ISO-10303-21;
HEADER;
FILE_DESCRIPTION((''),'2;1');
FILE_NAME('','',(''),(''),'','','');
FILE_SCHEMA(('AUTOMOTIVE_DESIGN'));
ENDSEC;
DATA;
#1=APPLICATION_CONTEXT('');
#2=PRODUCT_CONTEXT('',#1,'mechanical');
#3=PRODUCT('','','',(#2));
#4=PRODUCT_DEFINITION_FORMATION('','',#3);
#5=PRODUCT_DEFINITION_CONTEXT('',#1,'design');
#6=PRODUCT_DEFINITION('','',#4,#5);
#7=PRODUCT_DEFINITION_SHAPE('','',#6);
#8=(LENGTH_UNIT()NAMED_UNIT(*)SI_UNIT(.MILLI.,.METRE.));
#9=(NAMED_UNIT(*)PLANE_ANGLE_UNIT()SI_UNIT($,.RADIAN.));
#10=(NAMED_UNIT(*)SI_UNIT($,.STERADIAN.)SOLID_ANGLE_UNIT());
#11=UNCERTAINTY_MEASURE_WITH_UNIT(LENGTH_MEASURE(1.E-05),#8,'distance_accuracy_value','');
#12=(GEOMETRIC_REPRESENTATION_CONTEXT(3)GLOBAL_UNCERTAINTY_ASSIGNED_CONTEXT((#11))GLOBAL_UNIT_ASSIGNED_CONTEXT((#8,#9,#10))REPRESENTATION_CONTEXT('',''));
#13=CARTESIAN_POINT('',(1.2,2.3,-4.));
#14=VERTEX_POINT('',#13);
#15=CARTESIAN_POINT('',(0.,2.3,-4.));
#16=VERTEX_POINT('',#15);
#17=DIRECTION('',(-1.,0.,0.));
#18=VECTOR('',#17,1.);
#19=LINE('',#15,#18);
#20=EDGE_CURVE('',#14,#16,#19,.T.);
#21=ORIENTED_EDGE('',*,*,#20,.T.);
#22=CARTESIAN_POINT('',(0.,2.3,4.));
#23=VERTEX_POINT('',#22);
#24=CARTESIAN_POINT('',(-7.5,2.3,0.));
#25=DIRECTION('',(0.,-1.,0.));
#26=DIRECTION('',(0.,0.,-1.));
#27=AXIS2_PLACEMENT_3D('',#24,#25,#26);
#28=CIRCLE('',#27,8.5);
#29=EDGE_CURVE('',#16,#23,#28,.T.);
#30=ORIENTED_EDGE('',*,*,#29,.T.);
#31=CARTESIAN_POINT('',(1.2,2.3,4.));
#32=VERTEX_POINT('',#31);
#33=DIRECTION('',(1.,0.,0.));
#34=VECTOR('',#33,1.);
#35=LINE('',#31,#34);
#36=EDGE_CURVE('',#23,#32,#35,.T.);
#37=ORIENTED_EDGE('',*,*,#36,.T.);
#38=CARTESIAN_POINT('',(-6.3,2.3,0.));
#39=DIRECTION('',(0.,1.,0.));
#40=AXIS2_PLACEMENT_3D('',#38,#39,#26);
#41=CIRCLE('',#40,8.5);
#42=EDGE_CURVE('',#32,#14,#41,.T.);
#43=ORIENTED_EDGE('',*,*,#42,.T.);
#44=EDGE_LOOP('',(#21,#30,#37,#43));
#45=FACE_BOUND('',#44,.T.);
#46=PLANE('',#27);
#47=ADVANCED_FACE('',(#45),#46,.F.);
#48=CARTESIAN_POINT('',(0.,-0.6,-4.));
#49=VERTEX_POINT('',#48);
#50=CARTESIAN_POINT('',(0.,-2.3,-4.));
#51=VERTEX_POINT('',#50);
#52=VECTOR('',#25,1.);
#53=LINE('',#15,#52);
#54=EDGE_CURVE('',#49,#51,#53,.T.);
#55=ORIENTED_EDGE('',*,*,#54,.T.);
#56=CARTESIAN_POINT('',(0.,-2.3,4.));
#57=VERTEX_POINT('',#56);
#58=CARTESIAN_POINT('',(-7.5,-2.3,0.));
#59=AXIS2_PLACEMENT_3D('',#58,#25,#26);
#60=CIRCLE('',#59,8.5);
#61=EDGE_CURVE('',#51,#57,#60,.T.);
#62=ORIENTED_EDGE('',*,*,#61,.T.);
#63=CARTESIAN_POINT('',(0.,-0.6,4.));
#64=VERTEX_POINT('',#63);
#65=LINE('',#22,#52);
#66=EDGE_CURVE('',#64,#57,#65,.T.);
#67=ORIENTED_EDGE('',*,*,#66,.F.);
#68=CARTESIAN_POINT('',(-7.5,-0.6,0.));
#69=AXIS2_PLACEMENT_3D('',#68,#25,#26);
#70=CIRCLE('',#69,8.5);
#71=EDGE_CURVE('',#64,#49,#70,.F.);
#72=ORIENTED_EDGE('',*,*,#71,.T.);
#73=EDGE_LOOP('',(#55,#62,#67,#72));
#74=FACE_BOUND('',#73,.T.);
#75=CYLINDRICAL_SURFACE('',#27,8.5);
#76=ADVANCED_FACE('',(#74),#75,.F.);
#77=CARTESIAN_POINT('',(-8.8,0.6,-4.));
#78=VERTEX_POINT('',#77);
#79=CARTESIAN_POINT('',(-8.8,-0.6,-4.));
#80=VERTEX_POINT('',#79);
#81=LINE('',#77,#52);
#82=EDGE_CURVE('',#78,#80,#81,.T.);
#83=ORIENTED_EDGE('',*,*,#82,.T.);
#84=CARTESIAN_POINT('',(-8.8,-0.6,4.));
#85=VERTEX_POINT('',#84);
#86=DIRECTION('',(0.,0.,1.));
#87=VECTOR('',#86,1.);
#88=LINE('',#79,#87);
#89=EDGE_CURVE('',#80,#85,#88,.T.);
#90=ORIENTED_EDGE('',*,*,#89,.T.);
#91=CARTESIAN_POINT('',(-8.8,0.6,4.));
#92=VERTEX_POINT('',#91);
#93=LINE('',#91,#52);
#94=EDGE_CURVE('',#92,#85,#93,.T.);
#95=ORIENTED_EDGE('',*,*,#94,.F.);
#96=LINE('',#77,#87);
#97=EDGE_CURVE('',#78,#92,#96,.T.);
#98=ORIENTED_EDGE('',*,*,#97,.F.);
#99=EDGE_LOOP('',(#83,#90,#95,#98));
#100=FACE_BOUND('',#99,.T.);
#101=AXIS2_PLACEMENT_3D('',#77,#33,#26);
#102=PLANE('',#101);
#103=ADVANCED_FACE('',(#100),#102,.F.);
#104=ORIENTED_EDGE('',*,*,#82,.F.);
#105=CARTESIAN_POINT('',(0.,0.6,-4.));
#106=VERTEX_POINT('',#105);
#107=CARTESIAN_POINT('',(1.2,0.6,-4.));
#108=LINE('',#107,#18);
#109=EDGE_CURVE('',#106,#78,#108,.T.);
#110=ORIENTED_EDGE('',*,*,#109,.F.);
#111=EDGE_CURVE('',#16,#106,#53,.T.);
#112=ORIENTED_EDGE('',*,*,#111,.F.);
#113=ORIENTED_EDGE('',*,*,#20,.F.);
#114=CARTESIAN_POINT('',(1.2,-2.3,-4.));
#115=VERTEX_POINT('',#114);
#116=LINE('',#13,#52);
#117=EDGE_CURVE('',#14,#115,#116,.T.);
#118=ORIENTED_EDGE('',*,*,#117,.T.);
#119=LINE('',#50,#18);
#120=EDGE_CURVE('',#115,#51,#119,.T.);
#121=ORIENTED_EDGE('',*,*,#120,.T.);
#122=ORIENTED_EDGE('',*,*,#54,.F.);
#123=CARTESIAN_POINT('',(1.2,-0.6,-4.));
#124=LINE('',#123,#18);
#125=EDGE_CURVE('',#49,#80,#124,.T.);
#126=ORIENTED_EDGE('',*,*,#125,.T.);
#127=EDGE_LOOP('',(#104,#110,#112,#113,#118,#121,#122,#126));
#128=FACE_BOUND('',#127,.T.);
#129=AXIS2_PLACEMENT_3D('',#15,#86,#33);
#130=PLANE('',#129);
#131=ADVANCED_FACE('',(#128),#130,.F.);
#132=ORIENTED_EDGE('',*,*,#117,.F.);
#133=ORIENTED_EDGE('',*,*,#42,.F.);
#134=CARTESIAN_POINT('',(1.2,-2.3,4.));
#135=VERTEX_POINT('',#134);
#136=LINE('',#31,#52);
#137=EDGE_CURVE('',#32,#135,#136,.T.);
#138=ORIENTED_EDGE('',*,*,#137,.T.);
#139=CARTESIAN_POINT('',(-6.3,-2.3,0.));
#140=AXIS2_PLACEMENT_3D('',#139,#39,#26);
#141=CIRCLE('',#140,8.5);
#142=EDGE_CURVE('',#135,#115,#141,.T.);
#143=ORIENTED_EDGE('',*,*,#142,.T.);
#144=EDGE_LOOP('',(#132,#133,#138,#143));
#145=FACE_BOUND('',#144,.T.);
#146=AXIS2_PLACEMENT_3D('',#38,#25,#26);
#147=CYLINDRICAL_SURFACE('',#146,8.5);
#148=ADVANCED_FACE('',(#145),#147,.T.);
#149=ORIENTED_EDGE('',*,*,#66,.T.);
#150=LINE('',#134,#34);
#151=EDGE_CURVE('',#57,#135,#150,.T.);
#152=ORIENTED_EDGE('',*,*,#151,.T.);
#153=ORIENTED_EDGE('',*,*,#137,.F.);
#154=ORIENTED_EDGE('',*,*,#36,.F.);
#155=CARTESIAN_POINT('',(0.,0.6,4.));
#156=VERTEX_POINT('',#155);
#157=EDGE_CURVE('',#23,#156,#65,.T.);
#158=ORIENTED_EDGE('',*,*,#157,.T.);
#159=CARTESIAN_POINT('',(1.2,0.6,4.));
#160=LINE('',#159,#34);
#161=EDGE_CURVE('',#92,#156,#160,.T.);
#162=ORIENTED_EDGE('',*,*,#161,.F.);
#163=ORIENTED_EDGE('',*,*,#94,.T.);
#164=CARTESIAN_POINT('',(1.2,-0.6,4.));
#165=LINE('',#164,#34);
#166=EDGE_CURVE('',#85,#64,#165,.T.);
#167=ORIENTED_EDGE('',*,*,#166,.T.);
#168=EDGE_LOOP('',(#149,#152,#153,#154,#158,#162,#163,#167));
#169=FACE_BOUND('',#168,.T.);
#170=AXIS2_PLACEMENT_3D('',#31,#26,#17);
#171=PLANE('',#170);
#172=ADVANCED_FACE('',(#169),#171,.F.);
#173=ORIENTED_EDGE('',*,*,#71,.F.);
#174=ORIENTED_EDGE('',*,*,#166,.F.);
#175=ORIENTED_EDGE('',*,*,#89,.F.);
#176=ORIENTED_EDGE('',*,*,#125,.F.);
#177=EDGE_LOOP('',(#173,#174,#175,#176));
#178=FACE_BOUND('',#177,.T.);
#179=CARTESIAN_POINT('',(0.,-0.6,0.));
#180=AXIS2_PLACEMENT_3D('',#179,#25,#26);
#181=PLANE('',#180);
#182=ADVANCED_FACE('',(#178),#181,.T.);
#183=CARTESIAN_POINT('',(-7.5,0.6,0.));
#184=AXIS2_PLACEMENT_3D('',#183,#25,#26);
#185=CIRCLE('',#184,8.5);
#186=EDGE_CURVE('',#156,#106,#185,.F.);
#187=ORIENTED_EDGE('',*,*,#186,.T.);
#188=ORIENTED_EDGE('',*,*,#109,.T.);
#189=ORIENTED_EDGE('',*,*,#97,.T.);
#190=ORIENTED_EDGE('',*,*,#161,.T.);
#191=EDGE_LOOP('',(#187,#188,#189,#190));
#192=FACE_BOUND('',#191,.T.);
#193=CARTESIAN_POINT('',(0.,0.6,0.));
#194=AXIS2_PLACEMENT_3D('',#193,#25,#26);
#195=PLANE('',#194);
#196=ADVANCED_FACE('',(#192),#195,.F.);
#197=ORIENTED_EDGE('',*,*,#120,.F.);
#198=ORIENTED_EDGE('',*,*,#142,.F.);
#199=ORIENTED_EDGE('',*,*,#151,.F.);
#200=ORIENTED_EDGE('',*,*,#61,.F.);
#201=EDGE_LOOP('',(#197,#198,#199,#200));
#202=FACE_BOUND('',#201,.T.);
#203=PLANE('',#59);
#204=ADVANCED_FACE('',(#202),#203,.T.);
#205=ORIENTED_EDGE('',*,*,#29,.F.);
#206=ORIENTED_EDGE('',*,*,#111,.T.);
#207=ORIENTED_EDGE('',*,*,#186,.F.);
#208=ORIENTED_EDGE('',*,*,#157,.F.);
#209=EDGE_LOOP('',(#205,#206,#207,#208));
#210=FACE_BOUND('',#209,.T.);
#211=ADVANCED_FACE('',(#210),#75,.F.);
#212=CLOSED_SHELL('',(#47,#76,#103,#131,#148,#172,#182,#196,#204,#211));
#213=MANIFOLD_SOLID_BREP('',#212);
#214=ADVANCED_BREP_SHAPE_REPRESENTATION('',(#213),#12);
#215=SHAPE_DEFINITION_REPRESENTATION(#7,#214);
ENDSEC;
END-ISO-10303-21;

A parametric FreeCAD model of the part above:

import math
import FreeCAD as App
import Part
import Sketcher

V = App.Vector
Q = App.Units.Quantity


def add_polygon(sketch, points):
    """Adds a closed chain of lines whose ends are joined by coincident constraints."""
    first, n = sketch.GeometryCount, len(points)
    for a, b in zip(points, points[1:] + points[:1]):
        sketch.addGeometry(Part.LineSegment(App.Vector(*a, 0), App.Vector(*b, 0)), False)
    for i in range(n):
        sketch.addConstraint(Sketcher.Constraint("Coincident", first + i, 2, first + (i + 1) % n, 1))

doc = App.newDocument("Part")
body = doc.addObject("PartDesign::Body", "Body")

sketch1 = doc.addObject("Sketcher::SketchObject", "Sketch")
body.addObject(sketch1)
sketch1.AttachmentSupport = (doc.XZ_Plane, [""])
sketch1.MapMode = "FlatFace"
sketch1.addGeometry(Part.LineSegment(V(1.2, -4, 0), V(0, -4, 0)), False)
sketch1.addGeometry(Part.ArcOfCircle(Part.Circle(V(-7.5, 0, 0), V(0, 0, 1), 8.5), math.radians(-28.072487), math.radians(28.072487)), False)
sketch1.addGeometry(Part.LineSegment(V(0, 4, 0), V(1.2, 4, 0)), False)
sketch1.addGeometry(Part.ArcOfCircle(Part.Circle(V(-6.3, 0, 0), V(0, 0, 1), 8.5), math.radians(-28.072487), math.radians(28.072487)), False)
sketch1.addConstraint(Sketcher.Constraint("Coincident", 0, 2, 1, 1))
sketch1.addConstraint(Sketcher.Constraint("Coincident", 1, 2, 2, 1))
sketch1.addConstraint(Sketcher.Constraint("Coincident", 2, 2, 3, 2))
sketch1.addConstraint(Sketcher.Constraint("Coincident", 3, 1, 0, 1))
sketch1.addConstraint(Sketcher.Constraint("Horizontal", 0))
sketch1.addConstraint(Sketcher.Constraint("Horizontal", 2))
sketch1.addConstraint(Sketcher.Constraint("Equal", 1, 3))
sketch1.addConstraint(Sketcher.Constraint("Symmetric", 0, 2, 1, 2, -1, 1))
sketch1.addConstraint(Sketcher.Constraint("PointOnObject", 1, 3, -1))
sketch1.addConstraint(Sketcher.Constraint("PointOnObject", 3, 3, -1))
sketch1.addConstraint(Sketcher.Constraint("Radius", 1, Q("8.5 mm")))
sketch1.addConstraint(Sketcher.Constraint("DistanceX", 0, 2, 0, 1, Q("1.2 mm")))
sketch1.addConstraint(Sketcher.Constraint("DistanceY", 0, 2, -1, 1, Q("4 mm")))
pad1 = doc.addObject("PartDesign::Pad", "Pad")
body.addObject(pad1)
pad1.Profile = sketch1
pad1.Length = 4.6
pad1.Midplane = True

sketch2 = doc.addObject("Sketcher::SketchObject", "Sketch001")
body.addObject(sketch2)
sketch2.AttachmentSupport = (doc.XZ_Plane, [""])
sketch2.MapMode = "FlatFace"
add_polygon(sketch2, [(-8.8, -4), (-8.8, 4), (1.2, 4), (1.2, -4)])
sketch2.addConstraint(Sketcher.Constraint("Vertical", 0))
sketch2.addConstraint(Sketcher.Constraint("Horizontal", 1))
sketch2.addConstraint(Sketcher.Constraint("Vertical", 2))
sketch2.addConstraint(Sketcher.Constraint("Horizontal", 3))
sketch2.addConstraint(Sketcher.Constraint("DistanceX", 1, 1, 1, 2, Q("10 mm")))
sketch2.addConstraint(Sketcher.Constraint("DistanceY", 0, 1, 0, 2, Q("8 mm")))
sketch2.addConstraint(Sketcher.Constraint("DistanceY", -1, 1, 0, 2, Q("4 mm")))
sketch2.addConstraint(Sketcher.Constraint("DistanceX", 0, 2, -1, 1, Q("8.8 mm")))
pad2 = doc.addObject("PartDesign::Pad", "Pad001")
body.addObject(pad2)
pad2.Profile = sketch2
pad2.Length = 1.2
pad2.Midplane = True

doc.recompute()
